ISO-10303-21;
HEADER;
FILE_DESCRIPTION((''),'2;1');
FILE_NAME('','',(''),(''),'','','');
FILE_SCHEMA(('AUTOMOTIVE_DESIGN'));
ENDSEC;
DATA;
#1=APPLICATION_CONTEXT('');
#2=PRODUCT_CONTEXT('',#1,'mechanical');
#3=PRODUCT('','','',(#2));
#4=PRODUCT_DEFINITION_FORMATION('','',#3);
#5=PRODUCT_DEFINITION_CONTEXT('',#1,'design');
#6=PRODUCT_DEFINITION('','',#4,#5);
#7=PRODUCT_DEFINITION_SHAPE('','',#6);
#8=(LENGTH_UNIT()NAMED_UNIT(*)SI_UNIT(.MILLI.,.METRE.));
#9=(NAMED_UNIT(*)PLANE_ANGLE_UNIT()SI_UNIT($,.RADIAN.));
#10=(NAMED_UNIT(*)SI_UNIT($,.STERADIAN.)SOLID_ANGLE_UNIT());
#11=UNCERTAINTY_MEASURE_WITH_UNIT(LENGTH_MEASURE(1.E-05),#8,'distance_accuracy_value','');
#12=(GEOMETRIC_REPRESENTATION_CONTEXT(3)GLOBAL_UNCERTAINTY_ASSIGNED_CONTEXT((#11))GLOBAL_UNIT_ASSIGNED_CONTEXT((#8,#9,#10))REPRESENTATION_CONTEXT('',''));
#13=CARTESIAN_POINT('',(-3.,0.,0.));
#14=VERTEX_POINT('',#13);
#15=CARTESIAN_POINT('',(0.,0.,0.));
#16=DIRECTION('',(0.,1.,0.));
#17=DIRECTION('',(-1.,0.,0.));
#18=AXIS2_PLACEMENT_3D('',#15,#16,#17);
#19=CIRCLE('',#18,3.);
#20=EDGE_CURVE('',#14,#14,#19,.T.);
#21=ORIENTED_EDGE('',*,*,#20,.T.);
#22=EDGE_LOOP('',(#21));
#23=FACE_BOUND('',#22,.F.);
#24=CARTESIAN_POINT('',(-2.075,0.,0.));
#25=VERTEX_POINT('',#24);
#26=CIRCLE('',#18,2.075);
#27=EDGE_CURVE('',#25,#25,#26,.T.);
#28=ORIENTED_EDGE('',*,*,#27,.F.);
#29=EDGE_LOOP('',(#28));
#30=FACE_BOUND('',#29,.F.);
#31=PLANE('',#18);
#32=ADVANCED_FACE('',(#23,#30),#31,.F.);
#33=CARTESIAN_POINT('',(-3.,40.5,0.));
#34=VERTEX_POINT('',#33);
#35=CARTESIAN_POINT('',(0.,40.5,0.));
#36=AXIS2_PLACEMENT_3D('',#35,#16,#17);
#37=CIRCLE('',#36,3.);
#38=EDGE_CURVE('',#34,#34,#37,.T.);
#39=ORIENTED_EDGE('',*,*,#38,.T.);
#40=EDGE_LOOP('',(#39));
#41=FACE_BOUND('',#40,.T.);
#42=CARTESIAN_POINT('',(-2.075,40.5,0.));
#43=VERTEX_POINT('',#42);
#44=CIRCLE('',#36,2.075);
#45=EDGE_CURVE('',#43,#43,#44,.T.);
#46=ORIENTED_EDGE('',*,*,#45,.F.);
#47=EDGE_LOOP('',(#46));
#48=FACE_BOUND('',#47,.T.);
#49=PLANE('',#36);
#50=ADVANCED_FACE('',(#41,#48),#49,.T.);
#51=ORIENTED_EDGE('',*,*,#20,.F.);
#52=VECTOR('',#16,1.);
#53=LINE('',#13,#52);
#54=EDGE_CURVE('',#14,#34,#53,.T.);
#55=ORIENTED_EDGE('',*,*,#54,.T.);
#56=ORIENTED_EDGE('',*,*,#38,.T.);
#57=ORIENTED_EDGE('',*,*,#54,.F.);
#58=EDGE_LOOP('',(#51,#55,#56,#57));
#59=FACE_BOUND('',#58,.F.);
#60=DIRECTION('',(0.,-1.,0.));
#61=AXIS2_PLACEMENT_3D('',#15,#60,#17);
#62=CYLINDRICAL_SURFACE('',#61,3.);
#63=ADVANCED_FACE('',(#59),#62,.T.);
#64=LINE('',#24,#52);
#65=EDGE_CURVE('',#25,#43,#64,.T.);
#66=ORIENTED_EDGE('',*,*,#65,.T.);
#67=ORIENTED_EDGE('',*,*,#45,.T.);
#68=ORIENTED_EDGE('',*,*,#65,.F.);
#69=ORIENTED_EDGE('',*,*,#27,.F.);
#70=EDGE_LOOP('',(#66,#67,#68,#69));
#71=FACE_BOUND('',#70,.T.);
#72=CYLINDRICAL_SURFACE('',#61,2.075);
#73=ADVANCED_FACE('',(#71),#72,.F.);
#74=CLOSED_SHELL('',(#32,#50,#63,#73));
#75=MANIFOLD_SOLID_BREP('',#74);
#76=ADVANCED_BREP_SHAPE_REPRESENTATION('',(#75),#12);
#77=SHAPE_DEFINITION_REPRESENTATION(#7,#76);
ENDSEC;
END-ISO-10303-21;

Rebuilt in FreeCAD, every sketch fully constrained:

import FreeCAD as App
import Part
import Sketcher

V = App.Vector
Q = App.Units.Quantity

doc = App.newDocument("Part")
body = doc.addObject("PartDesign::Body", "Body")

# Sketch on XZ plane
sketch1 = body.newObject("Sketcher::SketchObject", "Sketch")
sketch1.AttachmentSupport = (doc.getObject("XZ_Plane"), [""])
sketch1.MapMode = "FlatFace"
sketch1.addGeometry(Part.Circle(V(0, 0, 0), V(0, 0, 1), 3), False)
sketch1.addGeometry(Part.Circle(V(0, 0, 0), V(0, 0, 1), 2.075), False)
sketch1.addConstraint(Sketcher.Constraint("Coincident", 0, 3, -1, 1))
sketch1.addConstraint(Sketcher.Constraint("Coincident", 1, 3, -1, 1))
sketch1.addConstraint(Sketcher.Constraint("Diameter", 0, Q("6 mm")))
sketch1.addConstraint(Sketcher.Constraint("Diameter", 1, Q("4.15 mm")))
pad1 = body.newObject("PartDesign::Pad", "Pad")
pad1.Profile = sketch1
pad1.Length = 40.5
pad1.Reversed = True

doc.recompute()
